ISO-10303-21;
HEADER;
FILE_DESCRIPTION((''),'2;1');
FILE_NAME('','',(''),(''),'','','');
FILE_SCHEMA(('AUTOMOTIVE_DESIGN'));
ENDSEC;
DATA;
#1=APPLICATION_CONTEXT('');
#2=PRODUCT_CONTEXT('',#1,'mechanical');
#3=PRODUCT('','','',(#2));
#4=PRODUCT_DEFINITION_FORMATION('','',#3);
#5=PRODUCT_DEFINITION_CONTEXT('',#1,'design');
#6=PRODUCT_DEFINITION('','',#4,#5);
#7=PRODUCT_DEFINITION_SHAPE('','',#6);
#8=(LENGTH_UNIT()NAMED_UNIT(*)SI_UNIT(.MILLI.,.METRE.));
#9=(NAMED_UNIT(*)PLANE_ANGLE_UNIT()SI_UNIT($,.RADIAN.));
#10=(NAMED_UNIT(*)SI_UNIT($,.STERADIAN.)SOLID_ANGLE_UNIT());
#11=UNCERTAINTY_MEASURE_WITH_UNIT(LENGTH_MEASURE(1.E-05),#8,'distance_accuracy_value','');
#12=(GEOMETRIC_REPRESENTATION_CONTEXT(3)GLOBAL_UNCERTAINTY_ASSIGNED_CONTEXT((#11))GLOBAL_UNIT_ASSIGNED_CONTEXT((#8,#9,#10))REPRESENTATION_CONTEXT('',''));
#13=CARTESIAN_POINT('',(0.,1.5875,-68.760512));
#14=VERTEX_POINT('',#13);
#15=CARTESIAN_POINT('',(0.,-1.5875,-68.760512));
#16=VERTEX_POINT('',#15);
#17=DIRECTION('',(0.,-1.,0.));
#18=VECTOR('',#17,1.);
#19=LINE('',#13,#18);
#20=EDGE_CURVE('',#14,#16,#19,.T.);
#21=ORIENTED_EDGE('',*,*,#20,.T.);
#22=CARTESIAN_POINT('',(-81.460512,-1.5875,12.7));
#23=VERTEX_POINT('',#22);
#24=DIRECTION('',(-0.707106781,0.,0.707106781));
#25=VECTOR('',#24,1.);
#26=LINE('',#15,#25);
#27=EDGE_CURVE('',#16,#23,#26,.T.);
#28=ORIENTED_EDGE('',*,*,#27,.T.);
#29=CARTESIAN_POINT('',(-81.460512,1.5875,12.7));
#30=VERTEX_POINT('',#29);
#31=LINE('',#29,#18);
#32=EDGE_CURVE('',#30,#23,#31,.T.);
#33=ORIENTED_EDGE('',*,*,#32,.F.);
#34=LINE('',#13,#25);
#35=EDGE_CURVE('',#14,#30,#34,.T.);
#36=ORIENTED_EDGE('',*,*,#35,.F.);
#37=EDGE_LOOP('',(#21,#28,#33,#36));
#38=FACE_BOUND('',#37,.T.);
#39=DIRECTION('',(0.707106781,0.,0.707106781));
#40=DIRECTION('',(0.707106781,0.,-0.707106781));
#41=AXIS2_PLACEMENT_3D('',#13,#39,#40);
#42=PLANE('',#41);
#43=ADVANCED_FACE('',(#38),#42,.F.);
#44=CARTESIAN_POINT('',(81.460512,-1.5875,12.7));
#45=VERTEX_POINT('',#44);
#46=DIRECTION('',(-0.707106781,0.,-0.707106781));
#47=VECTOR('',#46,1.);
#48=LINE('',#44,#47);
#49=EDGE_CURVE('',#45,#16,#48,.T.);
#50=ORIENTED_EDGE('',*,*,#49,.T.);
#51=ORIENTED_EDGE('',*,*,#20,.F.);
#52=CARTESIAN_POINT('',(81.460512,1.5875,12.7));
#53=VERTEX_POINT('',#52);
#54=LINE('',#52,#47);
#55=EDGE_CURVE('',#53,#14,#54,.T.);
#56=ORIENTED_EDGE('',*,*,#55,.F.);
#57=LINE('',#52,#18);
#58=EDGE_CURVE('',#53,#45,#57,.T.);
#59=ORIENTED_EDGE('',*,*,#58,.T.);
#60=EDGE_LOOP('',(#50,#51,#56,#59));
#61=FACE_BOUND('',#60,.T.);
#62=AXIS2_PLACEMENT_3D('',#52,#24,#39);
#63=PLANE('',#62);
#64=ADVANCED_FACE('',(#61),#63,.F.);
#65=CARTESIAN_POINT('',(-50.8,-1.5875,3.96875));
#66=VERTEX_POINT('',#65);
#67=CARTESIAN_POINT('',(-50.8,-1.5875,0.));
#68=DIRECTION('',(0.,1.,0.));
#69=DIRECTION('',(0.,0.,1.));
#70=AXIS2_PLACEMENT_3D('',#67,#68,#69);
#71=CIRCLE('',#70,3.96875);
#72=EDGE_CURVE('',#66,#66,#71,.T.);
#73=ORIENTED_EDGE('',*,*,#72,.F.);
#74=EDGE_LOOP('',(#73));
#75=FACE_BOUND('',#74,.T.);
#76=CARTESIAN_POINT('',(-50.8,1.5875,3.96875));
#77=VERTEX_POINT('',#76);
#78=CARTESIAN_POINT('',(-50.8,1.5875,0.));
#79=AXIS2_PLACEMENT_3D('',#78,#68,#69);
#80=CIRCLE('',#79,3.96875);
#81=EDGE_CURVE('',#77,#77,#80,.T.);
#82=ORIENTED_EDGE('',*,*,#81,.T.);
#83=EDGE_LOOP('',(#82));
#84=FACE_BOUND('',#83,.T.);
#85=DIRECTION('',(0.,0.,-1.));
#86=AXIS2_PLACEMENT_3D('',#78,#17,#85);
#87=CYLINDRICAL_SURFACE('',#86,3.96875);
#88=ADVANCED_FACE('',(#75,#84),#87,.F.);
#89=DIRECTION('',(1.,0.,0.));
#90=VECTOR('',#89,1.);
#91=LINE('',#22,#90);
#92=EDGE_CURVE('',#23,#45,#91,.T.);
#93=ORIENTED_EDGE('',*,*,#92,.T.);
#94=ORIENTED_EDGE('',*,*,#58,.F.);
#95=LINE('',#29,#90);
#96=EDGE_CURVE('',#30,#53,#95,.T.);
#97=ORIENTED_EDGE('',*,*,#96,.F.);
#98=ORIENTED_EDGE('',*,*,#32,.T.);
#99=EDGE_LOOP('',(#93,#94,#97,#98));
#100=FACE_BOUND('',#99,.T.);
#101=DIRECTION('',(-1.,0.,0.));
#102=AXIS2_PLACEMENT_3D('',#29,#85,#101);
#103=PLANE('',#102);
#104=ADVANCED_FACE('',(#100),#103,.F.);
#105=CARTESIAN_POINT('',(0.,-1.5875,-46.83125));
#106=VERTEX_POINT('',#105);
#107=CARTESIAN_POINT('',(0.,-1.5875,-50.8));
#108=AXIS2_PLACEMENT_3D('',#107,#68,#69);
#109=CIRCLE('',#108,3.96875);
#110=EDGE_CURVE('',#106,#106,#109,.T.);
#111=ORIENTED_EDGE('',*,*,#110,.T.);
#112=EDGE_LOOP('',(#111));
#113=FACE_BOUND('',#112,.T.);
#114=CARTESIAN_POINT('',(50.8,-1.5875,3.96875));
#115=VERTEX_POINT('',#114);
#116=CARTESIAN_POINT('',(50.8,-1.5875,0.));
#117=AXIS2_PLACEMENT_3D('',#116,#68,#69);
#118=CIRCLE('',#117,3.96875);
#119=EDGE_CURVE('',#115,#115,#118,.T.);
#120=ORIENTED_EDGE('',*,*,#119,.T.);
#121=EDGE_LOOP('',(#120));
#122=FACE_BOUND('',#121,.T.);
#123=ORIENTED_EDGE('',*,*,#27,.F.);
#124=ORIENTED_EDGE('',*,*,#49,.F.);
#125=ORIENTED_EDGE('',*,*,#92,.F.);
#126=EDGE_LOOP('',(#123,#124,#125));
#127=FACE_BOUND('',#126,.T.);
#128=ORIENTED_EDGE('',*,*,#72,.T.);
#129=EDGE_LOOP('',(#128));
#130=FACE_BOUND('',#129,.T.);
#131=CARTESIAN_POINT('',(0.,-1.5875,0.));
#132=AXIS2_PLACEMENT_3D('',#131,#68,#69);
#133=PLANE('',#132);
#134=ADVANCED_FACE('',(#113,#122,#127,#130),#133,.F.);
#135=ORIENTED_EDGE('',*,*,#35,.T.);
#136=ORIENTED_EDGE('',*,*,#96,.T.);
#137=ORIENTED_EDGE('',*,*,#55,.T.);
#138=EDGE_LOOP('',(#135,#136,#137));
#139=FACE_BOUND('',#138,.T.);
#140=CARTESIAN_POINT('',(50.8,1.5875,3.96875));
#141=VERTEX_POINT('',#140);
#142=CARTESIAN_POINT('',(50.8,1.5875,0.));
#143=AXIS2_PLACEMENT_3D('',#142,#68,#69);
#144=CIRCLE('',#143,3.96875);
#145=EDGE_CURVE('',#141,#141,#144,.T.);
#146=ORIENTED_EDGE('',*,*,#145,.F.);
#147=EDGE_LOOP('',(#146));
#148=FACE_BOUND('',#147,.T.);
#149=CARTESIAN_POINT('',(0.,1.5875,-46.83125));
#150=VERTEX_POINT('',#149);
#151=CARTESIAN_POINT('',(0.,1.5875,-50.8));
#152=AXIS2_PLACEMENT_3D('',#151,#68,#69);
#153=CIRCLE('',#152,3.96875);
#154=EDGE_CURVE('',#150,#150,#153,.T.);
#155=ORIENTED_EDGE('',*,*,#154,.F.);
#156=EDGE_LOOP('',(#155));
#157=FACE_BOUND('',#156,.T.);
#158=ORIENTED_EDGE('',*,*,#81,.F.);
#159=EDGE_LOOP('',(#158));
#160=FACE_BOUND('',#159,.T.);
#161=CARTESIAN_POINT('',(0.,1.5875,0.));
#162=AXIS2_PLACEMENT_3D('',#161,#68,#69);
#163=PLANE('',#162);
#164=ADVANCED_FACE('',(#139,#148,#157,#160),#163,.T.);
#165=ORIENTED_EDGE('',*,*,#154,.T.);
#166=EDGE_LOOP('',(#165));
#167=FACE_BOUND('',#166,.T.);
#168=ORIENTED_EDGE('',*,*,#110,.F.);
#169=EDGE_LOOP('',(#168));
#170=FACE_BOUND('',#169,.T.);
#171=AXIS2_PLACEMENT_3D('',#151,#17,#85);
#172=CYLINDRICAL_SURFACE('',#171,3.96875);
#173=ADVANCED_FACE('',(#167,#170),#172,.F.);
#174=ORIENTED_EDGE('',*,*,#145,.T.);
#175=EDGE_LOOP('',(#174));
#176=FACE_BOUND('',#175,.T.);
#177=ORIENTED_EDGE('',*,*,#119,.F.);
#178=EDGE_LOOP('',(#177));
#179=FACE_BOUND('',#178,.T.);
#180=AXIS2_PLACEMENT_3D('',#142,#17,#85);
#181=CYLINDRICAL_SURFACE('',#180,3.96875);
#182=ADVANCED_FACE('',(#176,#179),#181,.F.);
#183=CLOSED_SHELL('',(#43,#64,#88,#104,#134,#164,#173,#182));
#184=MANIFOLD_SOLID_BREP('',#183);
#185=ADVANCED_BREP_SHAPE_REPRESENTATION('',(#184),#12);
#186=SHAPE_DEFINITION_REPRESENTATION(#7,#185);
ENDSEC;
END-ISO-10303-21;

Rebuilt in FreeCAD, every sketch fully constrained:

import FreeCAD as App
import Part
import Sketcher

V = App.Vector
Q = App.Units.Quantity

doc = App.newDocument("Part")
body = doc.addObject("PartDesign::Body", "Body")

# Sketch on XZ plane
sketch1 = doc.addObject("Sketcher::SketchObject", "Sketch")
body.addObject(sketch1)
sketch1.AttachmentSupport = (doc.XZ_Plane, [""])
sketch1.MapMode = "FlatFace"
sketch1.addGeometry([
    Part.LineSegment(V(0, -68.8, 0), V(-81.5, 12.7, 0)),  # 0
    Part.LineSegment(V(-81.5, 12.7, 0), V(81.5, 12.7, 0)),  # 1
    Part.LineSegment(V(81.5, 12.7, 0), V(0, -68.8, 0)),  # 2
    Part.Circle(V(-50.8, 0, 0), V(0, 0, 1), 4),  # 3
    Part.Circle(V(50.8, 0, 0), V(0, 0, 1), 4),  # 4
    Part.Circle(V(0, -50.8, 0), V(0, 0, 1), 4),  # 5
], False)
sketch1.addConstraint([
    Sketcher.Constraint("Coincident", 0, 2, 1, 1),
    Sketcher.Constraint("Coincident", 1, 2, 2, 1),
    Sketcher.Constraint("Coincident", 2, 2, 0, 1),
    Sketcher.Constraint("Horizontal", 1),
    Sketcher.Constraint("Equal", 3, 4),
    Sketcher.Constraint("Equal", 4, 5),
    Sketcher.Constraint("Symmetric", 3, 3, 4, 3, -1, 1),
    Sketcher.Constraint("PointOnObject", 3, 3, -1),
    Sketcher.Constraint("PointOnObject", 5, 3, -2),
    Sketcher.Constraint("PointOnObject", 2, 2, -2),
    Sketcher.Constraint("Perpendicular", 0, 2),
    Sketcher.Constraint("Equal", 0, 2),
    Sketcher.Constraint("Diameter", 3, Q("0.3125 in")),
    Sketcher.Constraint("DistanceX", 3, 3, -1, 1, Q("2 in")),
    Sketcher.Constraint("DistanceY", 5, 3, -1, 1, Q("2 in")),
    Sketcher.Constraint("DistanceY", -1, 1, 0, 2, Q("0.5 in")),
    Sketcher.Constraint("Distance", 0, 115.202561),
])
pad1 = doc.addObject("PartDesign::Pad", "Pad")
body.addObject(pad1)
pad1.Profile = sketch1
pad1.Length = Q("0.125 in")
pad1.Midplane = True

doc.recompute()
